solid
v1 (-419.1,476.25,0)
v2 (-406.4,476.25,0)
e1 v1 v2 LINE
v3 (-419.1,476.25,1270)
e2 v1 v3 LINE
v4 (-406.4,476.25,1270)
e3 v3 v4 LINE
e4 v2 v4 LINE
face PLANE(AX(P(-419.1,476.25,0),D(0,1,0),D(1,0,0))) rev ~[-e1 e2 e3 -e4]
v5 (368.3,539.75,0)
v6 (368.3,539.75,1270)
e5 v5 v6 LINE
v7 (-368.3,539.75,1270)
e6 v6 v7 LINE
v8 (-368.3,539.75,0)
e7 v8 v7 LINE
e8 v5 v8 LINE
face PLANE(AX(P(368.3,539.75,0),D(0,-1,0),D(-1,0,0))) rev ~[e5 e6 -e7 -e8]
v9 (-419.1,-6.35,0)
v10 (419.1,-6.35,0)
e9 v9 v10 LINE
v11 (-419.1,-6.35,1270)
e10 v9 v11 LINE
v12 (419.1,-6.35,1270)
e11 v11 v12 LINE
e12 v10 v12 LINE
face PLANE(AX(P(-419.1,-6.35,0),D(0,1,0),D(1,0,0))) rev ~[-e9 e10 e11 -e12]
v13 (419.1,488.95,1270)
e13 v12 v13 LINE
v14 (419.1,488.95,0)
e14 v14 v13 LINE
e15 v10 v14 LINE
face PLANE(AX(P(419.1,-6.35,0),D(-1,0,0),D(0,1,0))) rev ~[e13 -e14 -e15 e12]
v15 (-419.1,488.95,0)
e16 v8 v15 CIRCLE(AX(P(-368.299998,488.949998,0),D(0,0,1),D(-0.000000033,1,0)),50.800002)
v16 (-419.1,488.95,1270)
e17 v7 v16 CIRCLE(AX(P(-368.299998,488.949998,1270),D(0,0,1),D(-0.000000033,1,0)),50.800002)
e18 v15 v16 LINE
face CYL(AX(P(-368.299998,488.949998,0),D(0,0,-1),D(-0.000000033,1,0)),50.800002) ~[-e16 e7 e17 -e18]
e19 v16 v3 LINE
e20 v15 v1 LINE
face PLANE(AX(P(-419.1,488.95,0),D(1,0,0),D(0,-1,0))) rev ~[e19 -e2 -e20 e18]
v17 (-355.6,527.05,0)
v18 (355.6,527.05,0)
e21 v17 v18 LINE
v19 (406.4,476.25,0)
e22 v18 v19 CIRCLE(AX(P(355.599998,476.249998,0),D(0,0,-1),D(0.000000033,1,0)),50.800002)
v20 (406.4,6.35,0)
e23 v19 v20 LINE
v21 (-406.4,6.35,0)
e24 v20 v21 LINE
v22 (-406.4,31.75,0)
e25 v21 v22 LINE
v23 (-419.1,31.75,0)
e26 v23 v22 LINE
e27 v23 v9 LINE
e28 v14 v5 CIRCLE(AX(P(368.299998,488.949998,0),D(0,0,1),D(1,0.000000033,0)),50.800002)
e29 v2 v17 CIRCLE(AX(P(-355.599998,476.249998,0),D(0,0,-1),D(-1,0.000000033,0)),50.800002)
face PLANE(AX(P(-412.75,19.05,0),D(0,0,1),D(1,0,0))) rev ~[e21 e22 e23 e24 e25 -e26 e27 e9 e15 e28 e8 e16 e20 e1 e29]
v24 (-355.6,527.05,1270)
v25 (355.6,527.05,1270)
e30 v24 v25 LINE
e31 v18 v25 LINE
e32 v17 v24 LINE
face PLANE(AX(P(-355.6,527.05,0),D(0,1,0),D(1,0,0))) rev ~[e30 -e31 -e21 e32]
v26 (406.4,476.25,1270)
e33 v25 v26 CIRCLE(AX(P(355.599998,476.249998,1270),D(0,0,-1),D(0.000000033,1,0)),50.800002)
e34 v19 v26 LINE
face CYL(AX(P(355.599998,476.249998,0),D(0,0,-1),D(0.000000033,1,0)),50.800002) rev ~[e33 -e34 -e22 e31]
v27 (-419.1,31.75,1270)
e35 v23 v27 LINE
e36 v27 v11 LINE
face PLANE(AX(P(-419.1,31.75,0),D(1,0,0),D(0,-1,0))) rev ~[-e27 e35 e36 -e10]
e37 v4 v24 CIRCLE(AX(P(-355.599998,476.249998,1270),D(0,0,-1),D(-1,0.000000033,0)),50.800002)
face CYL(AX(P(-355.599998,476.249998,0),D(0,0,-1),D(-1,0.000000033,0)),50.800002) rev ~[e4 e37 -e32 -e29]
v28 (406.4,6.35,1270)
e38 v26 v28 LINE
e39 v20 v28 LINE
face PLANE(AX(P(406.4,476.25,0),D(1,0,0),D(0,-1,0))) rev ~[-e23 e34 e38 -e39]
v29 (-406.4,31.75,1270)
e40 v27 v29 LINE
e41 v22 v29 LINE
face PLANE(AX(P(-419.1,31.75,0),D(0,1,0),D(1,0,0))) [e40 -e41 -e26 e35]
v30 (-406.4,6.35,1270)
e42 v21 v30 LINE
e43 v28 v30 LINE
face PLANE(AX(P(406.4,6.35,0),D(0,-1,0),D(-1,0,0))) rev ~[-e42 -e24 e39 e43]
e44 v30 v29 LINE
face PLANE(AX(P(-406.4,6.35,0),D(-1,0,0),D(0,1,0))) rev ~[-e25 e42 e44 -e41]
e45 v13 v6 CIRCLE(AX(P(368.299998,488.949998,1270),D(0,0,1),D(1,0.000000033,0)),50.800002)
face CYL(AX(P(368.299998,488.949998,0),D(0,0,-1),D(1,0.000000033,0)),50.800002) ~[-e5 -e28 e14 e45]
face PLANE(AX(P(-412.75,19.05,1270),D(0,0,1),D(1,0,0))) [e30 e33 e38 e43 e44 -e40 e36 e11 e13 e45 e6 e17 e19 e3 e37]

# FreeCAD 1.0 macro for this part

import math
import FreeCAD as App
import Part
import Sketcher
from FreeCAD import Vector
Q = App.Units.Quantity

doc = App.newDocument("Part")
body = doc.addObject("PartDesign::Body", "Body")

# Sketch on XY plane
sketch1 = body.newObject("Sketcher::SketchObject", "Sketch")
sketch1.AttachmentSupport = (doc.getObject("XY_Plane"), [""])
sketch1.MapMode = "FlatFace"
sketch1.addGeometry([
    Part.LineSegment(Vector(-419, 32, 0), Vector(-419, -6, 0)),  # 0
    Part.LineSegment(Vector(-419, -6, 0), Vector(419, -6, 0)),  # 1
    Part.LineSegment(Vector(419, -6, 0), Vector(419, 489, 0)),  # 2
    Part.ArcOfCircle(Part.Circle(Vector(368, 489, 0), Vector(0, 0, 1), 51), math.radians(0), math.radians(90)),  # 3
    Part.LineSegment(Vector(368, 540, 0), Vector(-368, 540, 0)),  # 4
    Part.ArcOfCircle(Part.Circle(Vector(-368, 489, 0), Vector(0, 0, 1), 51), math.radians(90), math.radians(180)),  # 5
    Part.LineSegment(Vector(-419, 489, 0), Vector(-419, 476, 0)),  # 6
    Part.LineSegment(Vector(-419, 476, 0), Vector(-406, 476, 0)),  # 7
    Part.ArcOfCircle(Part.Circle(Vector(-356, 476, 0), Vector(0, 0, 1), 51), math.radians(90), math.radians(180)),  # 8
    Part.LineSegment(Vector(-356, 527, 0), Vector(356, 527, 0)),  # 9
    Part.ArcOfCircle(Part.Circle(Vector(356, 476, 0), Vector(0, 0, 1), 51), math.radians(0), math.radians(90)),  # 10
    Part.LineSegment(Vector(406, 476, 0), Vector(406, 6, 0)),  # 11
    Part.LineSegment(Vector(406, 6, 0), Vector(-406, 6, 0)),  # 12
    Part.LineSegment(Vector(-406, 6, 0), Vector(-406, 32, 0)),  # 13
    Part.LineSegment(Vector(-406, 32, 0), Vector(-419, 32, 0)),  # 14
], False)
sketch1.addConstraint([
    Sketcher.Constraint("Coincident", 0, 2, 1, 1),
    Sketcher.Constraint("Coincident", 1, 2, 2, 1),
    Sketcher.Constraint("Tangent", 2, 2, 3, 1),
    Sketcher.Constraint("Tangent", 3, 2, 4, 1),
    Sketcher.Constraint("Tangent", 4, 2, 5, 1),
    Sketcher.Constraint("Tangent", 5, 2, 6, 1),
    Sketcher.Constraint("Coincident", 6, 2, 7, 1),
    Sketcher.Constraint("Coincident", 7, 2, 8, 2),
    Sketcher.Constraint("Tangent", 8, 1, 9, 1),
    Sketcher.Constraint("Tangent", 9, 2, 10, 2),
    Sketcher.Constraint("Tangent", 10, 1, 11, 1),
    Sketcher.Constraint("Coincident", 11, 2, 12, 1),
    Sketcher.Constraint("Coincident", 12, 2, 13, 1),
    Sketcher.Constraint("Coincident", 13, 2, 14, 1),
    Sketcher.Constraint("Coincident", 14, 2, 0, 1),
    Sketcher.Constraint("Vertical", 0),
    Sketcher.Constraint("Horizontal", 1),
    Sketcher.Constraint("Vertical", 2),
    Sketcher.Constraint("Horizontal", 4),
    Sketcher.Constraint("Vertical", 6),
    Sketcher.Constraint("Horizontal", 7),
    Sketcher.Constraint("Horizontal", 9),
    Sketcher.Constraint("Vertical", 11),
    Sketcher.Constraint("Horizontal", 12),
    Sketcher.Constraint("Vertical", 13),
    Sketcher.Constraint("Horizontal", 14),
    Sketcher.Constraint("Equal", 3, 5),
    Sketcher.Constraint("Equal", 5, 8),
    Sketcher.Constraint("Equal", 8, 10),
    Sketcher.Constraint("Symmetric", 7, 2, 10, 1, -2),
    Sketcher.Constraint("Vertical", 0, 2, 5, 2),
    Sketcher.Constraint("Vertical", 7, 2, 12, 2),
    Sketcher.Constraint("Equal", 14, 6),
    Sketcher.Constraint("Radius", 3, Q("2.0000001 in")),
    Sketcher.Constraint("DistanceX", 1, 1, 1, 2, Q("33 in")),
    Sketcher.Constraint("DistanceX", 9, 1, 9, 2, Q("28 in")),
    Sketcher.Constraint("DistanceY", 13, 1, 13, 2, Q("1 in")),
    Sketcher.Constraint("DistanceX", 7, 1, 7, 2, Q("0.5 in")),
    Sketcher.Constraint("DistanceY", 0, 2, 0, 1, Q("1.5 in")),
    Sketcher.Constraint("DistanceY", 2, 1, 2, 2, Q("19.5 in")),
    Sketcher.Constraint("DistanceY", -1, 1, 3, 3, Q("19.2499999 in")),
])
pad1 = body.newObject("PartDesign::Pad", "Pad")
pad1.Profile = sketch1
pad1.Length = Q("50 in")

doc.recompute()
